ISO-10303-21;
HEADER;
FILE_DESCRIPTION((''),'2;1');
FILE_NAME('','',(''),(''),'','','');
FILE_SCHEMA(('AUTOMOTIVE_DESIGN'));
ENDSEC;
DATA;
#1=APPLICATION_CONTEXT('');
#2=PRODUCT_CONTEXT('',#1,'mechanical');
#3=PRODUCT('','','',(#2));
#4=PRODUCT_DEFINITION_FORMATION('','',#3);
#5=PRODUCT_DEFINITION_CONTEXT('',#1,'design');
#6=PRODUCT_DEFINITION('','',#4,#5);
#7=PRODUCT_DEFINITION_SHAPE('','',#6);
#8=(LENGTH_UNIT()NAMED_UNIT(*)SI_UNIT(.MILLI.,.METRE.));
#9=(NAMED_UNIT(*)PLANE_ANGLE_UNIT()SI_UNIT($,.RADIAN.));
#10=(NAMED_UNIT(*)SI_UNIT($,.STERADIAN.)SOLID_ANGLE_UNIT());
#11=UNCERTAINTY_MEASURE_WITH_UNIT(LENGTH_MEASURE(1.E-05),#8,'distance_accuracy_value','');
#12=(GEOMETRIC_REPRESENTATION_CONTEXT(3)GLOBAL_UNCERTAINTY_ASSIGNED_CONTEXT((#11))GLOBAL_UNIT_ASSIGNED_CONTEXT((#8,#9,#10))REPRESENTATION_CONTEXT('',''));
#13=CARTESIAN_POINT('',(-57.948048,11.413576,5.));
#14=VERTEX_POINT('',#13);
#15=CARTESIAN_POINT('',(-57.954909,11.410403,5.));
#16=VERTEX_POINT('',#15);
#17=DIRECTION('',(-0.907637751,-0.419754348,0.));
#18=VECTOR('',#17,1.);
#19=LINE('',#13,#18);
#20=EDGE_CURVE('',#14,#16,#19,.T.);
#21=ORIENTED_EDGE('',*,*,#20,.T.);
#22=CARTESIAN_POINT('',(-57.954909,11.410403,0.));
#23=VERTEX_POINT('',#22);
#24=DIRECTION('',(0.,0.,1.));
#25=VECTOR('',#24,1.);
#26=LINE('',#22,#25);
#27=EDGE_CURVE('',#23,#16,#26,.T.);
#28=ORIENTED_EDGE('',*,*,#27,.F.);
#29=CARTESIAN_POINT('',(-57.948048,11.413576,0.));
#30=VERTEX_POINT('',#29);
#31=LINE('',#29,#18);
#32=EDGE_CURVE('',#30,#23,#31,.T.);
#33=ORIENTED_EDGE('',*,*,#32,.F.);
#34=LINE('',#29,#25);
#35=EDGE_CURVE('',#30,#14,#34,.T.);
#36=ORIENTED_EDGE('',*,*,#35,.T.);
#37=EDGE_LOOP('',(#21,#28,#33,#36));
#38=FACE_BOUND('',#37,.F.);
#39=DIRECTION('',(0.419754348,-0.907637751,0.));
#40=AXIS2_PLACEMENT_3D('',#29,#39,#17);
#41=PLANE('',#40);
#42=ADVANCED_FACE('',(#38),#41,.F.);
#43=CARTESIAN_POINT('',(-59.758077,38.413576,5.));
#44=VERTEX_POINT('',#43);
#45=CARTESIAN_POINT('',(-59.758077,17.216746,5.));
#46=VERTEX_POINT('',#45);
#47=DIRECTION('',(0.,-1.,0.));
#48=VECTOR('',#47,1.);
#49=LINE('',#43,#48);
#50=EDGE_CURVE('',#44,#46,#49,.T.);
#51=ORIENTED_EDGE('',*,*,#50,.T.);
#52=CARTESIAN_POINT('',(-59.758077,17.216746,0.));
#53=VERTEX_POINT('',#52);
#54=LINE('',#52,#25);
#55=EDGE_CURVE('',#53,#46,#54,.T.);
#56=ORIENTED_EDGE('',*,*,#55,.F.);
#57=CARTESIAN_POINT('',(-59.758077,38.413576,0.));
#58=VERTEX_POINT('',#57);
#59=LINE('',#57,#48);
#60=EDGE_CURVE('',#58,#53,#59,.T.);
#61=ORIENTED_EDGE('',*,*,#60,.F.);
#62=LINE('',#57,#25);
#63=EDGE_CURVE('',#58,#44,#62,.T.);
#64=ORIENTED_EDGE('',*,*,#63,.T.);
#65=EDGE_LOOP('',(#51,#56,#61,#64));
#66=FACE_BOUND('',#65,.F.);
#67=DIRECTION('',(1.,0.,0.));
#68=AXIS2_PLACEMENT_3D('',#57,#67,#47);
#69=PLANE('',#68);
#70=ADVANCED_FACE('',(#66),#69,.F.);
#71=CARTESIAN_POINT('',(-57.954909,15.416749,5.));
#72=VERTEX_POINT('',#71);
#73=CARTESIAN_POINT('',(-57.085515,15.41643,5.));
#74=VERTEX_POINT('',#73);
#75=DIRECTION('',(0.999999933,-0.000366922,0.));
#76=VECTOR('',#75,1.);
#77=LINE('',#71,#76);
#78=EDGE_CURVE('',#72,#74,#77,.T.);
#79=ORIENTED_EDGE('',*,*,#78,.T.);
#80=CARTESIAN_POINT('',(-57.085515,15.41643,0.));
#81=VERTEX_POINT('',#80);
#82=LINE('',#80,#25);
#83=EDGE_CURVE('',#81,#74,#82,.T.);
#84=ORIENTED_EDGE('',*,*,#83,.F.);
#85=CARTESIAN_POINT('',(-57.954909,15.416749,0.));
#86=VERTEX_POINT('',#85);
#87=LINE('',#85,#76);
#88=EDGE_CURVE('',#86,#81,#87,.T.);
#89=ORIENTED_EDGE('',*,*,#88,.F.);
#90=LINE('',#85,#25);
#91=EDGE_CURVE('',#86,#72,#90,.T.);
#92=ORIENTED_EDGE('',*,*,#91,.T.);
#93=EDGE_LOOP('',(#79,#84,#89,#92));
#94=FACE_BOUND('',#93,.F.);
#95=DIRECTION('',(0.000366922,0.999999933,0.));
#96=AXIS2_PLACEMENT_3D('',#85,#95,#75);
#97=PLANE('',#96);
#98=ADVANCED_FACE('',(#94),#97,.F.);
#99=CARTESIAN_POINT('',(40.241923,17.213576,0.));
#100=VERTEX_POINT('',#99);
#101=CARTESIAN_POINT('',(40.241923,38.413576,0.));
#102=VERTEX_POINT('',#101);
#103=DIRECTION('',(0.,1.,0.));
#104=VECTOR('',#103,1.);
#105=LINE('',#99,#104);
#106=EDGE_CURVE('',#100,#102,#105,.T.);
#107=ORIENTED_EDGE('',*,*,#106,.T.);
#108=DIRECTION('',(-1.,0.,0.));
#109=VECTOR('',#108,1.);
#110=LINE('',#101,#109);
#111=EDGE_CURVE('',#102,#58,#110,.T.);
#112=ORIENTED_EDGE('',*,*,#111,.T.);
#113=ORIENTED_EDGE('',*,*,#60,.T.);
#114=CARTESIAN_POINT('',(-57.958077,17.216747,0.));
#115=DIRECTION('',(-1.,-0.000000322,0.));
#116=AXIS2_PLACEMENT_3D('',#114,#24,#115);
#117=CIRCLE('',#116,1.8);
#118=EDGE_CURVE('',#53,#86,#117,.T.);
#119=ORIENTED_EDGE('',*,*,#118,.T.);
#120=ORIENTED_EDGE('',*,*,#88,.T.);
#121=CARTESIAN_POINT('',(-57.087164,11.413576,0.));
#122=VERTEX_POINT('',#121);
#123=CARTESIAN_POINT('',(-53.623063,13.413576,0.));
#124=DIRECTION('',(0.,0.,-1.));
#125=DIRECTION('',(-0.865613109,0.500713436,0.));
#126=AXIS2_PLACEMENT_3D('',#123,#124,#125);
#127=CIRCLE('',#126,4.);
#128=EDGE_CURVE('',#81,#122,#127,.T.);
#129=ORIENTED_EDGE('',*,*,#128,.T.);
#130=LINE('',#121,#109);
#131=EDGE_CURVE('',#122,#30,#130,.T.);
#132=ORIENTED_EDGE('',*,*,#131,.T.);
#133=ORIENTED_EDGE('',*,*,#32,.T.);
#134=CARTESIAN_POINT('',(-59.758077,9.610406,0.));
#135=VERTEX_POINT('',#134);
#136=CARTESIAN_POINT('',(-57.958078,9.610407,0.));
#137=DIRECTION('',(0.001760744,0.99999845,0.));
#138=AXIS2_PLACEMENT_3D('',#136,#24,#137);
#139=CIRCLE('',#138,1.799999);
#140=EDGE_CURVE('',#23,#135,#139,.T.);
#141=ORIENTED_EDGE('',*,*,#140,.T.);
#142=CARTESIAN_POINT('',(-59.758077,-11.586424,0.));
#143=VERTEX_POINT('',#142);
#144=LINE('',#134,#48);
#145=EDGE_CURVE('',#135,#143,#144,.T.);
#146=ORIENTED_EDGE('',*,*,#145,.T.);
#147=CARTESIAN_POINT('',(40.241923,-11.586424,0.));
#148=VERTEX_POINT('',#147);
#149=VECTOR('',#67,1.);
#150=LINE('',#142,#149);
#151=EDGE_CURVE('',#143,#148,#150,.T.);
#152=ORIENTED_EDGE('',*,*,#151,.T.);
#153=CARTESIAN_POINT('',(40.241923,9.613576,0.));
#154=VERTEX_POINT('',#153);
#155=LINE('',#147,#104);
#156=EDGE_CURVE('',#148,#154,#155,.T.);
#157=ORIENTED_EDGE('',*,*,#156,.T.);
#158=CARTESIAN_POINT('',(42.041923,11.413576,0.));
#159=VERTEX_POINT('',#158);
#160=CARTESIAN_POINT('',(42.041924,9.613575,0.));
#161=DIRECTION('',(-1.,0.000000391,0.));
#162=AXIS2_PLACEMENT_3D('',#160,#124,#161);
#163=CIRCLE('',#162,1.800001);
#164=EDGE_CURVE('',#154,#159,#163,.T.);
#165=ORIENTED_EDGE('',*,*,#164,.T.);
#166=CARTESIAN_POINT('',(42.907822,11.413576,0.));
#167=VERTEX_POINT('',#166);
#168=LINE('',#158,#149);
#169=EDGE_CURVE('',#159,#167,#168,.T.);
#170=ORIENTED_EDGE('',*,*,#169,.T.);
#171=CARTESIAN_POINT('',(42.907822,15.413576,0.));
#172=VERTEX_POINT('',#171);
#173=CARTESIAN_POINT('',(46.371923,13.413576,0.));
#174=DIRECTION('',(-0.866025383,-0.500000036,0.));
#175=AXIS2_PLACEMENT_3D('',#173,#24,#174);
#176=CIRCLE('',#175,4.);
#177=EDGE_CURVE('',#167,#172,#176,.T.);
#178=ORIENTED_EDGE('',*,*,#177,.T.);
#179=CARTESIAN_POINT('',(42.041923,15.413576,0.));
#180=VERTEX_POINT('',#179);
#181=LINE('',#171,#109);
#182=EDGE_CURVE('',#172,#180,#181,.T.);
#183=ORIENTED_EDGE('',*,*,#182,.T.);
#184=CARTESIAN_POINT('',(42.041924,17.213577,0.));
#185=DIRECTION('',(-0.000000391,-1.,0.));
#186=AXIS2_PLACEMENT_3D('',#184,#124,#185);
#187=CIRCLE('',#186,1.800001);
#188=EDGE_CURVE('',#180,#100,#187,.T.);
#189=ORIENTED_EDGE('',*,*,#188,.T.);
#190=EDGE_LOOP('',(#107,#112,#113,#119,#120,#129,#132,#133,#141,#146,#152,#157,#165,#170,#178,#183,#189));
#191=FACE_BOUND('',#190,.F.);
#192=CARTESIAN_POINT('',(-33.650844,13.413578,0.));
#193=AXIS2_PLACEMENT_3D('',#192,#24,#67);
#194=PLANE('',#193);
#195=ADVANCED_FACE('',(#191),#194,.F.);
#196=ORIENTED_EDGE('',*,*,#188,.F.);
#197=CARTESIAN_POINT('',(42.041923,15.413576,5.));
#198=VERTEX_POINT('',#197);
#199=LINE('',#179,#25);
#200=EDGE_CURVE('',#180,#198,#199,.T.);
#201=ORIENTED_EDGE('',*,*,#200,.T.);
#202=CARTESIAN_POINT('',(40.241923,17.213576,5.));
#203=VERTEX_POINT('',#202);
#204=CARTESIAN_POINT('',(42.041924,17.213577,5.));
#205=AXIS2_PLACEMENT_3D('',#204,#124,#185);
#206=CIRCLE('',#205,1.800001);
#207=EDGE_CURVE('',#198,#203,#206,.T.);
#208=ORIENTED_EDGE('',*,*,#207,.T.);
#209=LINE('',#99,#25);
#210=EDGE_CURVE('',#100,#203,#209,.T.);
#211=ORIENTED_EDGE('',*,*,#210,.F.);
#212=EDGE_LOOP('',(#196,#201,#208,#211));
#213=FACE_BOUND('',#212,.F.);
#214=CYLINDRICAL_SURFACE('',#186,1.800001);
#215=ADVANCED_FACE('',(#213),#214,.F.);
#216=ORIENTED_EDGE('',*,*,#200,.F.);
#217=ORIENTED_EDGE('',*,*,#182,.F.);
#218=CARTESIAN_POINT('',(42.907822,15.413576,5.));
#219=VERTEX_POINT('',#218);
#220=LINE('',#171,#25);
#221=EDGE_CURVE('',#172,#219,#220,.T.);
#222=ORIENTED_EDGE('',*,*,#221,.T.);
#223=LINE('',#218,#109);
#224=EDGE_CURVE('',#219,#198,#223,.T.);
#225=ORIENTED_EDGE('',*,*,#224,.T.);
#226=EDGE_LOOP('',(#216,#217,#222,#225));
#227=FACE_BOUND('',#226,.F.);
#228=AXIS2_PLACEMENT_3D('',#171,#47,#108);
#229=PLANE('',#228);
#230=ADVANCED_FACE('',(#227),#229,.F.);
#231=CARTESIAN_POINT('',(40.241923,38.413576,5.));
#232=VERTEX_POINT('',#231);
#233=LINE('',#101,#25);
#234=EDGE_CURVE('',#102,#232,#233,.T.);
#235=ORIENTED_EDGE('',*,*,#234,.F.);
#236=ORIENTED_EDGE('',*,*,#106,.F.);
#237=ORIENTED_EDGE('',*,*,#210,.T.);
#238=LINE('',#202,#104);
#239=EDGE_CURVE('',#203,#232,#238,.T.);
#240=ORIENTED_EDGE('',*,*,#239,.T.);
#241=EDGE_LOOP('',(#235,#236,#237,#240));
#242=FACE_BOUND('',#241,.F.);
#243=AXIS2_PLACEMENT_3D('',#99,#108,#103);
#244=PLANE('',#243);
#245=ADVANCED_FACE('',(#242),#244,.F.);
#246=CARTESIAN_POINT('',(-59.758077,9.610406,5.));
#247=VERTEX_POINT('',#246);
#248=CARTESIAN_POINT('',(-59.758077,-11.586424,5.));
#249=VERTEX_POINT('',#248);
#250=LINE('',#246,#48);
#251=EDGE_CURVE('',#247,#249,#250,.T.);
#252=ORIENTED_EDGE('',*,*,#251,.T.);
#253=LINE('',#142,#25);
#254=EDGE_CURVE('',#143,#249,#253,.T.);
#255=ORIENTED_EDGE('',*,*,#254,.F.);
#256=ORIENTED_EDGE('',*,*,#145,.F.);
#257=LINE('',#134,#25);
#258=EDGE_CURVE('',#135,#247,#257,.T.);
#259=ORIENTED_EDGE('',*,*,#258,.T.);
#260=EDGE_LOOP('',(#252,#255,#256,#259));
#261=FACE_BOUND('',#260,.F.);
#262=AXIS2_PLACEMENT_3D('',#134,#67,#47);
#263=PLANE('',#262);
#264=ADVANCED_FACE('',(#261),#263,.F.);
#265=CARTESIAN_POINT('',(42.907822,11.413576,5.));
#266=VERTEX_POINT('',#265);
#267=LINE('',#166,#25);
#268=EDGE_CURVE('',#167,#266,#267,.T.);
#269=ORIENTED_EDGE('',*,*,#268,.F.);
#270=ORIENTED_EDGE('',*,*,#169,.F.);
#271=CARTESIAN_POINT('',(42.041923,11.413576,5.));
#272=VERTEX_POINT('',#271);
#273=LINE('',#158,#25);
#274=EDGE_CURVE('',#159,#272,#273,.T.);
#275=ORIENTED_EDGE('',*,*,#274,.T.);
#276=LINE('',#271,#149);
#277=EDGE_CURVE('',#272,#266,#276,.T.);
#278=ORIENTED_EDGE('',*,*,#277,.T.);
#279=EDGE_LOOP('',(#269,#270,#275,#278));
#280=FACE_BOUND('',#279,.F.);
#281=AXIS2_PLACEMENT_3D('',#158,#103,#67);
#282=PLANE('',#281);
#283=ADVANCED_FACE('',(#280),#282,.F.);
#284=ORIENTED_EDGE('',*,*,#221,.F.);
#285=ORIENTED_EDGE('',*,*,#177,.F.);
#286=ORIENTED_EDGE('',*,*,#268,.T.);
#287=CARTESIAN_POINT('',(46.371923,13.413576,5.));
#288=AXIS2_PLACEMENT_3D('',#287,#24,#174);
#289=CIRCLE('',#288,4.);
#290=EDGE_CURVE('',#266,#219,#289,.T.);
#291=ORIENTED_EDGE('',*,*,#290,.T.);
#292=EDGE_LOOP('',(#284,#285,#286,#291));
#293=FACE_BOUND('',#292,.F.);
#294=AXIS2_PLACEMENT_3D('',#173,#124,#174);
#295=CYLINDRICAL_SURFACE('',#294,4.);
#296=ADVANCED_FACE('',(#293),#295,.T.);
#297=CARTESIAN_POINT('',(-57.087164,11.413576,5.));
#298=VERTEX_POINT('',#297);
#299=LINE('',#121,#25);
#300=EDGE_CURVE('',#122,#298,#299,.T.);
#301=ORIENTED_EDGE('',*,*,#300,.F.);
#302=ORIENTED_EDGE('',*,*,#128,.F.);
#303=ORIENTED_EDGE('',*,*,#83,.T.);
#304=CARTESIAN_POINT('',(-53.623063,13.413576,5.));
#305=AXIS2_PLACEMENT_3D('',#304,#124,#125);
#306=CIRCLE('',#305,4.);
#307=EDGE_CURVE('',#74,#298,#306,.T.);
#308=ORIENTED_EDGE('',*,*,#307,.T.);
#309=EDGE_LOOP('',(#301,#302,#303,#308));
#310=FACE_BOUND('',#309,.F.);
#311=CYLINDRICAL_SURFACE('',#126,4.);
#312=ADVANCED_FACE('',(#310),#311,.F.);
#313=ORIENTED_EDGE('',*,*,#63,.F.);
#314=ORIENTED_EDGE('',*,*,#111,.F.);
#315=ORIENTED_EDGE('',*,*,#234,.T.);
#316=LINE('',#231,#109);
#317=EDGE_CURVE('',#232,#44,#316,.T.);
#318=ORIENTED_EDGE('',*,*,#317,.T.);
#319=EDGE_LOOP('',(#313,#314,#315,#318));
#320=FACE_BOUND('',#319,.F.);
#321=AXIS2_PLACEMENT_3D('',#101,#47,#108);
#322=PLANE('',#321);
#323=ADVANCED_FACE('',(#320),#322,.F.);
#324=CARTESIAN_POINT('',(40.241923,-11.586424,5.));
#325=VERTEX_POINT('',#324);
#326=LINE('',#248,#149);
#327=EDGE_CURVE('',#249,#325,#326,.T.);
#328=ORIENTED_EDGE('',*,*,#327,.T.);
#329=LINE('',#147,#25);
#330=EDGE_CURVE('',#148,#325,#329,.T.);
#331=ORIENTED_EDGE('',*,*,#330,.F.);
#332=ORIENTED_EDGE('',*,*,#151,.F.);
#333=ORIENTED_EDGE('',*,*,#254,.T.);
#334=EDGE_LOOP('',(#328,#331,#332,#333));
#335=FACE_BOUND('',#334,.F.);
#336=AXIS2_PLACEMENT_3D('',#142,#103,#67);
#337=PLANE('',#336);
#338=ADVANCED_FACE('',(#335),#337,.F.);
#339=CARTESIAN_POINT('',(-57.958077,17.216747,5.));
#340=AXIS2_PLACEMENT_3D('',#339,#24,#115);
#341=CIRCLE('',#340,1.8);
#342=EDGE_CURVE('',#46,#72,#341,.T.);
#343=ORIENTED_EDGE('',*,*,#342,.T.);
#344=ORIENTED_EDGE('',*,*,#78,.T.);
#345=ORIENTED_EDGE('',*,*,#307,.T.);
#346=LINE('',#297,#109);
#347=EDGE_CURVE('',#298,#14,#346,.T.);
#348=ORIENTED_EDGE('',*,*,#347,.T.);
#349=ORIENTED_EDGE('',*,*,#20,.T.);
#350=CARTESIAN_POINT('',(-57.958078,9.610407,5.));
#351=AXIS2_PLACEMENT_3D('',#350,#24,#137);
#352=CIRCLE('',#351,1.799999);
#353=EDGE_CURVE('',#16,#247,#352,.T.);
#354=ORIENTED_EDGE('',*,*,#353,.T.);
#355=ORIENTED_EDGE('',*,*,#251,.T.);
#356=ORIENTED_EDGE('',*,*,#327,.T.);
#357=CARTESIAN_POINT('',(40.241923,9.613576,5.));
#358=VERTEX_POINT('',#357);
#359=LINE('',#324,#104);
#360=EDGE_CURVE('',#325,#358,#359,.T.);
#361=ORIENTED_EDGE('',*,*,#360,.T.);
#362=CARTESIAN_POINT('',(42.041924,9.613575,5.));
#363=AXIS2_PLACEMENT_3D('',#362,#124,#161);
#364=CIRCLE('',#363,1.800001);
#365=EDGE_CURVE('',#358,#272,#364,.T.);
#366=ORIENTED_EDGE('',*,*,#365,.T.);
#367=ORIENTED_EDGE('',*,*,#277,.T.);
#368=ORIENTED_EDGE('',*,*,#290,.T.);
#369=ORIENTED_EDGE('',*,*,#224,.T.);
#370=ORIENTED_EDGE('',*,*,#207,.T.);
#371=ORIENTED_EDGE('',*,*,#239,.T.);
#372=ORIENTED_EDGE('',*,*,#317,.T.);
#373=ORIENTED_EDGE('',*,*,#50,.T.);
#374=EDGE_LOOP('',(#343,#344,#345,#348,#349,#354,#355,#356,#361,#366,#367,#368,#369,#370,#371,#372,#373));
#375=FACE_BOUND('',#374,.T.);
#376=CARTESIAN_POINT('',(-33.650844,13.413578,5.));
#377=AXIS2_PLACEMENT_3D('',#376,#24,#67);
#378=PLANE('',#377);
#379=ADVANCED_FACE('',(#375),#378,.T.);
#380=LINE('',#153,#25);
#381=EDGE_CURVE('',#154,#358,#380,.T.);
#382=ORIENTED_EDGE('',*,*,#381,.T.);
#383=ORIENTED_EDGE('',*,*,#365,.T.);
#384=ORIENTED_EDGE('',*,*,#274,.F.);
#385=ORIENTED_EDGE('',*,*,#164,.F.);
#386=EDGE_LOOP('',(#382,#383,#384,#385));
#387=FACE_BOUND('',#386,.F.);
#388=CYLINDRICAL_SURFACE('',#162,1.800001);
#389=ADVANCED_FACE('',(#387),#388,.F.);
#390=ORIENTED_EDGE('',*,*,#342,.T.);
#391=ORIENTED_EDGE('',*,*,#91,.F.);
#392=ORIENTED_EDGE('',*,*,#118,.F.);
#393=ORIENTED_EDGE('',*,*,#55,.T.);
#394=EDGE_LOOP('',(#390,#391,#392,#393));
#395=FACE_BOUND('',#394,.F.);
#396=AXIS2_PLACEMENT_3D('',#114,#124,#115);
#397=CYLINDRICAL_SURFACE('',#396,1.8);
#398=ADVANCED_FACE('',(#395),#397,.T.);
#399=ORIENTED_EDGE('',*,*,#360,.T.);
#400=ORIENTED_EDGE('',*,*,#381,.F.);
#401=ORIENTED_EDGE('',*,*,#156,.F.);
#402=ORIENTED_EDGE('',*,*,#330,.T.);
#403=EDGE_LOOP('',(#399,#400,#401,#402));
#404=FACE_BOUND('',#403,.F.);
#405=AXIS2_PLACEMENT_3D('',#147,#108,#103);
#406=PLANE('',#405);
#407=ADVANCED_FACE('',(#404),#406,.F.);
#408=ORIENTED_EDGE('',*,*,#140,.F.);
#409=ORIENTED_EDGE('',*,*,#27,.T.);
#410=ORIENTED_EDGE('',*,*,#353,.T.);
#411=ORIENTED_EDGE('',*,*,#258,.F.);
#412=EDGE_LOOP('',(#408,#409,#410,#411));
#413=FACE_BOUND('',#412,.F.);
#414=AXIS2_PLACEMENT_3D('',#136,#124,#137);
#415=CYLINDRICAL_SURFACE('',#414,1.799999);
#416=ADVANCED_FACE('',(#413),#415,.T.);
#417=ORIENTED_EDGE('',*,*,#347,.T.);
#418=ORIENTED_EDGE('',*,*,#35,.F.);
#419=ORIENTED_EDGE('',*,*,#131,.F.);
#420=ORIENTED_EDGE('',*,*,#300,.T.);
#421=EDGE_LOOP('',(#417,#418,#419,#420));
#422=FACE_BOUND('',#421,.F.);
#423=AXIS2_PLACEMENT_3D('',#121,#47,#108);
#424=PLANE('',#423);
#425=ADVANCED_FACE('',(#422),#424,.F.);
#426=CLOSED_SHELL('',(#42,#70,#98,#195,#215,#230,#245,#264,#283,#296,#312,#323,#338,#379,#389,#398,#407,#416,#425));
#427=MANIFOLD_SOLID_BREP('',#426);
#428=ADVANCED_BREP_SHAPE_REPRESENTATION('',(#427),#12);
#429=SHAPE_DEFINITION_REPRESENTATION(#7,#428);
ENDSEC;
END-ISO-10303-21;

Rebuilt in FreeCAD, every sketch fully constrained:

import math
import FreeCAD as App
import Part
import Sketcher
from FreeCAD import Vector
Q = App.Units.Quantity

doc = App.newDocument("Part")
params = doc.addObject("Spreadsheet::Sheet", "Params")
for row, (alias, value) in enumerate([
    ("sketch1_radius", "4 mm"),
    ("sketch1_radius2", "1.8 mm"),
    ("sketch1_width", "100 mm"),
    ("sketch1_height", "21.2 mm"),
    ("sketch1_height2", "2 mm"),
    ("pad1_length", "5 mm"),
], start=1):
    params.set(f"A{row}", alias)
    params.set(f"B{row}", "=" + value)
    params.setAlias(f"B{row}", alias)

body = doc.addObject("PartDesign::Body", "Body")

# Sketch on XY plane
sketch1 = body.newObject("Sketcher::SketchObject", "Sketch")
sketch1.AttachmentSupport = (doc.getObject("XY_Plane"), [""])
sketch1.MapMode = "FlatFace"
sketch1.addGeometry([
    Part.LineSegment(Vector(-59.758, 38.414, 0), Vector(-59.758, 17.217, 0)),  # 0
    Part.ArcOfCircle(Part.Circle(Vector(-57.958, 17.217, 0), Vector(0, 0, 1), 1.8), math.radians(-180), math.radians(-90)),  # 1
    Part.LineSegment(Vector(-57.955, 15.417, 0), Vector(-57.086, 15.416, 0)),  # 2
    Part.ArcOfCircle(Part.Circle(Vector(-53.623, 13.414, 0), Vector(0, 0, 1), 4), math.radians(-150), math.radians(150)),  # 3
    Part.LineSegment(Vector(-57.087, 11.414, 0), Vector(-57.948, 11.414, 0)),  # 4
    Part.LineSegment(Vector(-57.948, 11.414, 0), Vector(-57.955, 11.41, 0)),  # 5
    Part.ArcOfCircle(Part.Circle(Vector(-57.958, 9.61, 0), Vector(0, 0, 1), 1.8), math.radians(90), math.radians(180)),  # 6
    Part.LineSegment(Vector(-59.758, 9.61, 0), Vector(-59.758, -11.586, 0)),  # 7
    Part.LineSegment(Vector(-59.758, -11.586, 0), Vector(40.242, -11.586, 0)),  # 8
    Part.LineSegment(Vector(40.242, -11.586, 0), Vector(40.242, 9.614, 0)),  # 9
    Part.ArcOfCircle(Part.Circle(Vector(42.042, 9.614, 0), Vector(0, 0, 1), 1.8), math.radians(90), math.radians(180)),  # 10
    Part.LineSegment(Vector(42.042, 11.414, 0), Vector(42.908, 11.414, 0)),  # 11
    Part.ArcOfCircle(Part.Circle(Vector(46.372, 13.414, 0), Vector(0, 0, 1), 4), math.radians(-150), math.radians(150)),  # 12
    Part.LineSegment(Vector(42.908, 15.414, 0), Vector(42.042, 15.414, 0)),  # 13
    Part.ArcOfCircle(Part.Circle(Vector(42.042, 17.214, 0), Vector(0, 0, 1), 1.8), math.radians(-180), math.radians(-90)),  # 14
    Part.LineSegment(Vector(40.242, 17.214, 0), Vector(40.242, 38.414, 0)),  # 15
    Part.LineSegment(Vector(40.242, 38.414, 0), Vector(-59.758, 38.414, 0)),  # 16
], False)
sketch1.addConstraint([
    Sketcher.Constraint("Tangent", 0, 2, 1, 1),
    Sketcher.Constraint("Coincident", 1, 2, 2, 1),
    Sketcher.Constraint("Coincident", 2, 2, 3, 2),
    Sketcher.Constraint("Coincident", 3, 1, 4, 1),
    Sketcher.Constraint("Coincident", 4, 2, 5, 1),
    Sketcher.Constraint("Coincident", 5, 2, 6, 1),
    Sketcher.Constraint("Tangent", 6, 2, 7, 1),
    Sketcher.Constraint("Coincident", 7, 2, 8, 1),
    Sketcher.Constraint("Coincident", 8, 2, 9, 1),
    Sketcher.Constraint("Tangent", 9, 2, 10, 2),
    Sketcher.Constraint("Tangent", 10, 1, 11, 1),
    Sketcher.Constraint("Coincident", 11, 2, 12, 1),
    Sketcher.Constraint("Coincident", 12, 2, 13, 1),
    Sketcher.Constraint("Tangent", 13, 2, 14, 2),
    Sketcher.Constraint("Tangent", 14, 1, 15, 1),
    Sketcher.Constraint("Coincident", 15, 2, 16, 1),
    Sketcher.Constraint("Coincident", 16, 2, 0, 1),
    Sketcher.Constraint("Vertical", 0),
    Sketcher.Constraint("Horizontal", 4),
    Sketcher.Constraint("Vertical", 7),
    Sketcher.Constraint("Horizontal", 8),
    Sketcher.Constraint("Vertical", 9),
    Sketcher.Constraint("Horizontal", 11),
    Sketcher.Constraint("Horizontal", 13),
    Sketcher.Constraint("Vertical", 15),
    Sketcher.Constraint("Horizontal", 16),
    Sketcher.Constraint("Equal", 1, 6),
    Sketcher.Constraint("Equal", 1, 10),
    Sketcher.Constraint("Equal", 3, 12),
    Sketcher.Constraint("Equal", 10, 14),
    Sketcher.Constraint("Horizontal", 3, 3, 12, 3),
    Sketcher.Constraint("Horizontal", 4, 2, 10, 1),
    Sketcher.Constraint("Vertical", 1, 3, 6, 3),
    Sketcher.Constraint("Vertical", 10, 3, 14, 3),
    Sketcher.Constraint("Vertical", 1, 2, 5, 2),
    Sketcher.Constraint("Vertical", 11, 2, 12, 2),
    Sketcher.Constraint("Equal", 0, 7),
    Sketcher.Constraint("Equal", 9, 15),
    Sketcher.Constraint("Radius", 3, Q("4 mm")),
    Sketcher.Constraint("Radius", 1, Q("1.8 mm")),
    Sketcher.Constraint("DistanceX", 8, 1, 8, 2, Q("100 mm")),
    Sketcher.Constraint("DistanceY", 9, 1, 9, 2, Q("21.2 mm")),
    Sketcher.Constraint("DistanceY", 3, 1, 3, 3, Q("2 mm")),
    Sketcher.Constraint("DistanceX", 10, 3, 12, 3, Q("4.33 mm")),
    Sketcher.Constraint("DistanceY", 0, 2, 0, 1, Q("21.19683 mm")),
    Sketcher.Constraint("Distance", 5, Q("0.007559 mm")),
    Sketcher.Constraint("DistanceX", 4, 2, 4, 1, Q("0.860884 mm")),
    Sketcher.Constraint("DistanceX", 6, 3, -1, 1, Q("57.958078 mm")),
    Sketcher.Constraint("DistanceX", 1, 2, -1, 1, Q("57.954909 mm")),
    Sketcher.Constraint("DistanceY", -1, 1, 1, 2, Q("15.416749 mm")),
    Sketcher.Constraint("DistanceY", -1, 1, 2, 2, Q("15.41643 mm")),
])
sketch1.setExpression("Constraints[38]", "Params.sketch1_radius")
sketch1.setExpression("Constraints[39]", "Params.sketch1_radius2")
sketch1.setExpression("Constraints[40]", "Params.sketch1_width")
sketch1.setExpression("Constraints[41]", "Params.sketch1_height")
sketch1.setExpression("Constraints[42]", "Params.sketch1_height2")
pad1 = body.newObject("PartDesign::Pad", "Pad")
pad1.Profile = sketch1
pad1.setExpression("Length", "Params.pad1_length")

doc.recompute()
